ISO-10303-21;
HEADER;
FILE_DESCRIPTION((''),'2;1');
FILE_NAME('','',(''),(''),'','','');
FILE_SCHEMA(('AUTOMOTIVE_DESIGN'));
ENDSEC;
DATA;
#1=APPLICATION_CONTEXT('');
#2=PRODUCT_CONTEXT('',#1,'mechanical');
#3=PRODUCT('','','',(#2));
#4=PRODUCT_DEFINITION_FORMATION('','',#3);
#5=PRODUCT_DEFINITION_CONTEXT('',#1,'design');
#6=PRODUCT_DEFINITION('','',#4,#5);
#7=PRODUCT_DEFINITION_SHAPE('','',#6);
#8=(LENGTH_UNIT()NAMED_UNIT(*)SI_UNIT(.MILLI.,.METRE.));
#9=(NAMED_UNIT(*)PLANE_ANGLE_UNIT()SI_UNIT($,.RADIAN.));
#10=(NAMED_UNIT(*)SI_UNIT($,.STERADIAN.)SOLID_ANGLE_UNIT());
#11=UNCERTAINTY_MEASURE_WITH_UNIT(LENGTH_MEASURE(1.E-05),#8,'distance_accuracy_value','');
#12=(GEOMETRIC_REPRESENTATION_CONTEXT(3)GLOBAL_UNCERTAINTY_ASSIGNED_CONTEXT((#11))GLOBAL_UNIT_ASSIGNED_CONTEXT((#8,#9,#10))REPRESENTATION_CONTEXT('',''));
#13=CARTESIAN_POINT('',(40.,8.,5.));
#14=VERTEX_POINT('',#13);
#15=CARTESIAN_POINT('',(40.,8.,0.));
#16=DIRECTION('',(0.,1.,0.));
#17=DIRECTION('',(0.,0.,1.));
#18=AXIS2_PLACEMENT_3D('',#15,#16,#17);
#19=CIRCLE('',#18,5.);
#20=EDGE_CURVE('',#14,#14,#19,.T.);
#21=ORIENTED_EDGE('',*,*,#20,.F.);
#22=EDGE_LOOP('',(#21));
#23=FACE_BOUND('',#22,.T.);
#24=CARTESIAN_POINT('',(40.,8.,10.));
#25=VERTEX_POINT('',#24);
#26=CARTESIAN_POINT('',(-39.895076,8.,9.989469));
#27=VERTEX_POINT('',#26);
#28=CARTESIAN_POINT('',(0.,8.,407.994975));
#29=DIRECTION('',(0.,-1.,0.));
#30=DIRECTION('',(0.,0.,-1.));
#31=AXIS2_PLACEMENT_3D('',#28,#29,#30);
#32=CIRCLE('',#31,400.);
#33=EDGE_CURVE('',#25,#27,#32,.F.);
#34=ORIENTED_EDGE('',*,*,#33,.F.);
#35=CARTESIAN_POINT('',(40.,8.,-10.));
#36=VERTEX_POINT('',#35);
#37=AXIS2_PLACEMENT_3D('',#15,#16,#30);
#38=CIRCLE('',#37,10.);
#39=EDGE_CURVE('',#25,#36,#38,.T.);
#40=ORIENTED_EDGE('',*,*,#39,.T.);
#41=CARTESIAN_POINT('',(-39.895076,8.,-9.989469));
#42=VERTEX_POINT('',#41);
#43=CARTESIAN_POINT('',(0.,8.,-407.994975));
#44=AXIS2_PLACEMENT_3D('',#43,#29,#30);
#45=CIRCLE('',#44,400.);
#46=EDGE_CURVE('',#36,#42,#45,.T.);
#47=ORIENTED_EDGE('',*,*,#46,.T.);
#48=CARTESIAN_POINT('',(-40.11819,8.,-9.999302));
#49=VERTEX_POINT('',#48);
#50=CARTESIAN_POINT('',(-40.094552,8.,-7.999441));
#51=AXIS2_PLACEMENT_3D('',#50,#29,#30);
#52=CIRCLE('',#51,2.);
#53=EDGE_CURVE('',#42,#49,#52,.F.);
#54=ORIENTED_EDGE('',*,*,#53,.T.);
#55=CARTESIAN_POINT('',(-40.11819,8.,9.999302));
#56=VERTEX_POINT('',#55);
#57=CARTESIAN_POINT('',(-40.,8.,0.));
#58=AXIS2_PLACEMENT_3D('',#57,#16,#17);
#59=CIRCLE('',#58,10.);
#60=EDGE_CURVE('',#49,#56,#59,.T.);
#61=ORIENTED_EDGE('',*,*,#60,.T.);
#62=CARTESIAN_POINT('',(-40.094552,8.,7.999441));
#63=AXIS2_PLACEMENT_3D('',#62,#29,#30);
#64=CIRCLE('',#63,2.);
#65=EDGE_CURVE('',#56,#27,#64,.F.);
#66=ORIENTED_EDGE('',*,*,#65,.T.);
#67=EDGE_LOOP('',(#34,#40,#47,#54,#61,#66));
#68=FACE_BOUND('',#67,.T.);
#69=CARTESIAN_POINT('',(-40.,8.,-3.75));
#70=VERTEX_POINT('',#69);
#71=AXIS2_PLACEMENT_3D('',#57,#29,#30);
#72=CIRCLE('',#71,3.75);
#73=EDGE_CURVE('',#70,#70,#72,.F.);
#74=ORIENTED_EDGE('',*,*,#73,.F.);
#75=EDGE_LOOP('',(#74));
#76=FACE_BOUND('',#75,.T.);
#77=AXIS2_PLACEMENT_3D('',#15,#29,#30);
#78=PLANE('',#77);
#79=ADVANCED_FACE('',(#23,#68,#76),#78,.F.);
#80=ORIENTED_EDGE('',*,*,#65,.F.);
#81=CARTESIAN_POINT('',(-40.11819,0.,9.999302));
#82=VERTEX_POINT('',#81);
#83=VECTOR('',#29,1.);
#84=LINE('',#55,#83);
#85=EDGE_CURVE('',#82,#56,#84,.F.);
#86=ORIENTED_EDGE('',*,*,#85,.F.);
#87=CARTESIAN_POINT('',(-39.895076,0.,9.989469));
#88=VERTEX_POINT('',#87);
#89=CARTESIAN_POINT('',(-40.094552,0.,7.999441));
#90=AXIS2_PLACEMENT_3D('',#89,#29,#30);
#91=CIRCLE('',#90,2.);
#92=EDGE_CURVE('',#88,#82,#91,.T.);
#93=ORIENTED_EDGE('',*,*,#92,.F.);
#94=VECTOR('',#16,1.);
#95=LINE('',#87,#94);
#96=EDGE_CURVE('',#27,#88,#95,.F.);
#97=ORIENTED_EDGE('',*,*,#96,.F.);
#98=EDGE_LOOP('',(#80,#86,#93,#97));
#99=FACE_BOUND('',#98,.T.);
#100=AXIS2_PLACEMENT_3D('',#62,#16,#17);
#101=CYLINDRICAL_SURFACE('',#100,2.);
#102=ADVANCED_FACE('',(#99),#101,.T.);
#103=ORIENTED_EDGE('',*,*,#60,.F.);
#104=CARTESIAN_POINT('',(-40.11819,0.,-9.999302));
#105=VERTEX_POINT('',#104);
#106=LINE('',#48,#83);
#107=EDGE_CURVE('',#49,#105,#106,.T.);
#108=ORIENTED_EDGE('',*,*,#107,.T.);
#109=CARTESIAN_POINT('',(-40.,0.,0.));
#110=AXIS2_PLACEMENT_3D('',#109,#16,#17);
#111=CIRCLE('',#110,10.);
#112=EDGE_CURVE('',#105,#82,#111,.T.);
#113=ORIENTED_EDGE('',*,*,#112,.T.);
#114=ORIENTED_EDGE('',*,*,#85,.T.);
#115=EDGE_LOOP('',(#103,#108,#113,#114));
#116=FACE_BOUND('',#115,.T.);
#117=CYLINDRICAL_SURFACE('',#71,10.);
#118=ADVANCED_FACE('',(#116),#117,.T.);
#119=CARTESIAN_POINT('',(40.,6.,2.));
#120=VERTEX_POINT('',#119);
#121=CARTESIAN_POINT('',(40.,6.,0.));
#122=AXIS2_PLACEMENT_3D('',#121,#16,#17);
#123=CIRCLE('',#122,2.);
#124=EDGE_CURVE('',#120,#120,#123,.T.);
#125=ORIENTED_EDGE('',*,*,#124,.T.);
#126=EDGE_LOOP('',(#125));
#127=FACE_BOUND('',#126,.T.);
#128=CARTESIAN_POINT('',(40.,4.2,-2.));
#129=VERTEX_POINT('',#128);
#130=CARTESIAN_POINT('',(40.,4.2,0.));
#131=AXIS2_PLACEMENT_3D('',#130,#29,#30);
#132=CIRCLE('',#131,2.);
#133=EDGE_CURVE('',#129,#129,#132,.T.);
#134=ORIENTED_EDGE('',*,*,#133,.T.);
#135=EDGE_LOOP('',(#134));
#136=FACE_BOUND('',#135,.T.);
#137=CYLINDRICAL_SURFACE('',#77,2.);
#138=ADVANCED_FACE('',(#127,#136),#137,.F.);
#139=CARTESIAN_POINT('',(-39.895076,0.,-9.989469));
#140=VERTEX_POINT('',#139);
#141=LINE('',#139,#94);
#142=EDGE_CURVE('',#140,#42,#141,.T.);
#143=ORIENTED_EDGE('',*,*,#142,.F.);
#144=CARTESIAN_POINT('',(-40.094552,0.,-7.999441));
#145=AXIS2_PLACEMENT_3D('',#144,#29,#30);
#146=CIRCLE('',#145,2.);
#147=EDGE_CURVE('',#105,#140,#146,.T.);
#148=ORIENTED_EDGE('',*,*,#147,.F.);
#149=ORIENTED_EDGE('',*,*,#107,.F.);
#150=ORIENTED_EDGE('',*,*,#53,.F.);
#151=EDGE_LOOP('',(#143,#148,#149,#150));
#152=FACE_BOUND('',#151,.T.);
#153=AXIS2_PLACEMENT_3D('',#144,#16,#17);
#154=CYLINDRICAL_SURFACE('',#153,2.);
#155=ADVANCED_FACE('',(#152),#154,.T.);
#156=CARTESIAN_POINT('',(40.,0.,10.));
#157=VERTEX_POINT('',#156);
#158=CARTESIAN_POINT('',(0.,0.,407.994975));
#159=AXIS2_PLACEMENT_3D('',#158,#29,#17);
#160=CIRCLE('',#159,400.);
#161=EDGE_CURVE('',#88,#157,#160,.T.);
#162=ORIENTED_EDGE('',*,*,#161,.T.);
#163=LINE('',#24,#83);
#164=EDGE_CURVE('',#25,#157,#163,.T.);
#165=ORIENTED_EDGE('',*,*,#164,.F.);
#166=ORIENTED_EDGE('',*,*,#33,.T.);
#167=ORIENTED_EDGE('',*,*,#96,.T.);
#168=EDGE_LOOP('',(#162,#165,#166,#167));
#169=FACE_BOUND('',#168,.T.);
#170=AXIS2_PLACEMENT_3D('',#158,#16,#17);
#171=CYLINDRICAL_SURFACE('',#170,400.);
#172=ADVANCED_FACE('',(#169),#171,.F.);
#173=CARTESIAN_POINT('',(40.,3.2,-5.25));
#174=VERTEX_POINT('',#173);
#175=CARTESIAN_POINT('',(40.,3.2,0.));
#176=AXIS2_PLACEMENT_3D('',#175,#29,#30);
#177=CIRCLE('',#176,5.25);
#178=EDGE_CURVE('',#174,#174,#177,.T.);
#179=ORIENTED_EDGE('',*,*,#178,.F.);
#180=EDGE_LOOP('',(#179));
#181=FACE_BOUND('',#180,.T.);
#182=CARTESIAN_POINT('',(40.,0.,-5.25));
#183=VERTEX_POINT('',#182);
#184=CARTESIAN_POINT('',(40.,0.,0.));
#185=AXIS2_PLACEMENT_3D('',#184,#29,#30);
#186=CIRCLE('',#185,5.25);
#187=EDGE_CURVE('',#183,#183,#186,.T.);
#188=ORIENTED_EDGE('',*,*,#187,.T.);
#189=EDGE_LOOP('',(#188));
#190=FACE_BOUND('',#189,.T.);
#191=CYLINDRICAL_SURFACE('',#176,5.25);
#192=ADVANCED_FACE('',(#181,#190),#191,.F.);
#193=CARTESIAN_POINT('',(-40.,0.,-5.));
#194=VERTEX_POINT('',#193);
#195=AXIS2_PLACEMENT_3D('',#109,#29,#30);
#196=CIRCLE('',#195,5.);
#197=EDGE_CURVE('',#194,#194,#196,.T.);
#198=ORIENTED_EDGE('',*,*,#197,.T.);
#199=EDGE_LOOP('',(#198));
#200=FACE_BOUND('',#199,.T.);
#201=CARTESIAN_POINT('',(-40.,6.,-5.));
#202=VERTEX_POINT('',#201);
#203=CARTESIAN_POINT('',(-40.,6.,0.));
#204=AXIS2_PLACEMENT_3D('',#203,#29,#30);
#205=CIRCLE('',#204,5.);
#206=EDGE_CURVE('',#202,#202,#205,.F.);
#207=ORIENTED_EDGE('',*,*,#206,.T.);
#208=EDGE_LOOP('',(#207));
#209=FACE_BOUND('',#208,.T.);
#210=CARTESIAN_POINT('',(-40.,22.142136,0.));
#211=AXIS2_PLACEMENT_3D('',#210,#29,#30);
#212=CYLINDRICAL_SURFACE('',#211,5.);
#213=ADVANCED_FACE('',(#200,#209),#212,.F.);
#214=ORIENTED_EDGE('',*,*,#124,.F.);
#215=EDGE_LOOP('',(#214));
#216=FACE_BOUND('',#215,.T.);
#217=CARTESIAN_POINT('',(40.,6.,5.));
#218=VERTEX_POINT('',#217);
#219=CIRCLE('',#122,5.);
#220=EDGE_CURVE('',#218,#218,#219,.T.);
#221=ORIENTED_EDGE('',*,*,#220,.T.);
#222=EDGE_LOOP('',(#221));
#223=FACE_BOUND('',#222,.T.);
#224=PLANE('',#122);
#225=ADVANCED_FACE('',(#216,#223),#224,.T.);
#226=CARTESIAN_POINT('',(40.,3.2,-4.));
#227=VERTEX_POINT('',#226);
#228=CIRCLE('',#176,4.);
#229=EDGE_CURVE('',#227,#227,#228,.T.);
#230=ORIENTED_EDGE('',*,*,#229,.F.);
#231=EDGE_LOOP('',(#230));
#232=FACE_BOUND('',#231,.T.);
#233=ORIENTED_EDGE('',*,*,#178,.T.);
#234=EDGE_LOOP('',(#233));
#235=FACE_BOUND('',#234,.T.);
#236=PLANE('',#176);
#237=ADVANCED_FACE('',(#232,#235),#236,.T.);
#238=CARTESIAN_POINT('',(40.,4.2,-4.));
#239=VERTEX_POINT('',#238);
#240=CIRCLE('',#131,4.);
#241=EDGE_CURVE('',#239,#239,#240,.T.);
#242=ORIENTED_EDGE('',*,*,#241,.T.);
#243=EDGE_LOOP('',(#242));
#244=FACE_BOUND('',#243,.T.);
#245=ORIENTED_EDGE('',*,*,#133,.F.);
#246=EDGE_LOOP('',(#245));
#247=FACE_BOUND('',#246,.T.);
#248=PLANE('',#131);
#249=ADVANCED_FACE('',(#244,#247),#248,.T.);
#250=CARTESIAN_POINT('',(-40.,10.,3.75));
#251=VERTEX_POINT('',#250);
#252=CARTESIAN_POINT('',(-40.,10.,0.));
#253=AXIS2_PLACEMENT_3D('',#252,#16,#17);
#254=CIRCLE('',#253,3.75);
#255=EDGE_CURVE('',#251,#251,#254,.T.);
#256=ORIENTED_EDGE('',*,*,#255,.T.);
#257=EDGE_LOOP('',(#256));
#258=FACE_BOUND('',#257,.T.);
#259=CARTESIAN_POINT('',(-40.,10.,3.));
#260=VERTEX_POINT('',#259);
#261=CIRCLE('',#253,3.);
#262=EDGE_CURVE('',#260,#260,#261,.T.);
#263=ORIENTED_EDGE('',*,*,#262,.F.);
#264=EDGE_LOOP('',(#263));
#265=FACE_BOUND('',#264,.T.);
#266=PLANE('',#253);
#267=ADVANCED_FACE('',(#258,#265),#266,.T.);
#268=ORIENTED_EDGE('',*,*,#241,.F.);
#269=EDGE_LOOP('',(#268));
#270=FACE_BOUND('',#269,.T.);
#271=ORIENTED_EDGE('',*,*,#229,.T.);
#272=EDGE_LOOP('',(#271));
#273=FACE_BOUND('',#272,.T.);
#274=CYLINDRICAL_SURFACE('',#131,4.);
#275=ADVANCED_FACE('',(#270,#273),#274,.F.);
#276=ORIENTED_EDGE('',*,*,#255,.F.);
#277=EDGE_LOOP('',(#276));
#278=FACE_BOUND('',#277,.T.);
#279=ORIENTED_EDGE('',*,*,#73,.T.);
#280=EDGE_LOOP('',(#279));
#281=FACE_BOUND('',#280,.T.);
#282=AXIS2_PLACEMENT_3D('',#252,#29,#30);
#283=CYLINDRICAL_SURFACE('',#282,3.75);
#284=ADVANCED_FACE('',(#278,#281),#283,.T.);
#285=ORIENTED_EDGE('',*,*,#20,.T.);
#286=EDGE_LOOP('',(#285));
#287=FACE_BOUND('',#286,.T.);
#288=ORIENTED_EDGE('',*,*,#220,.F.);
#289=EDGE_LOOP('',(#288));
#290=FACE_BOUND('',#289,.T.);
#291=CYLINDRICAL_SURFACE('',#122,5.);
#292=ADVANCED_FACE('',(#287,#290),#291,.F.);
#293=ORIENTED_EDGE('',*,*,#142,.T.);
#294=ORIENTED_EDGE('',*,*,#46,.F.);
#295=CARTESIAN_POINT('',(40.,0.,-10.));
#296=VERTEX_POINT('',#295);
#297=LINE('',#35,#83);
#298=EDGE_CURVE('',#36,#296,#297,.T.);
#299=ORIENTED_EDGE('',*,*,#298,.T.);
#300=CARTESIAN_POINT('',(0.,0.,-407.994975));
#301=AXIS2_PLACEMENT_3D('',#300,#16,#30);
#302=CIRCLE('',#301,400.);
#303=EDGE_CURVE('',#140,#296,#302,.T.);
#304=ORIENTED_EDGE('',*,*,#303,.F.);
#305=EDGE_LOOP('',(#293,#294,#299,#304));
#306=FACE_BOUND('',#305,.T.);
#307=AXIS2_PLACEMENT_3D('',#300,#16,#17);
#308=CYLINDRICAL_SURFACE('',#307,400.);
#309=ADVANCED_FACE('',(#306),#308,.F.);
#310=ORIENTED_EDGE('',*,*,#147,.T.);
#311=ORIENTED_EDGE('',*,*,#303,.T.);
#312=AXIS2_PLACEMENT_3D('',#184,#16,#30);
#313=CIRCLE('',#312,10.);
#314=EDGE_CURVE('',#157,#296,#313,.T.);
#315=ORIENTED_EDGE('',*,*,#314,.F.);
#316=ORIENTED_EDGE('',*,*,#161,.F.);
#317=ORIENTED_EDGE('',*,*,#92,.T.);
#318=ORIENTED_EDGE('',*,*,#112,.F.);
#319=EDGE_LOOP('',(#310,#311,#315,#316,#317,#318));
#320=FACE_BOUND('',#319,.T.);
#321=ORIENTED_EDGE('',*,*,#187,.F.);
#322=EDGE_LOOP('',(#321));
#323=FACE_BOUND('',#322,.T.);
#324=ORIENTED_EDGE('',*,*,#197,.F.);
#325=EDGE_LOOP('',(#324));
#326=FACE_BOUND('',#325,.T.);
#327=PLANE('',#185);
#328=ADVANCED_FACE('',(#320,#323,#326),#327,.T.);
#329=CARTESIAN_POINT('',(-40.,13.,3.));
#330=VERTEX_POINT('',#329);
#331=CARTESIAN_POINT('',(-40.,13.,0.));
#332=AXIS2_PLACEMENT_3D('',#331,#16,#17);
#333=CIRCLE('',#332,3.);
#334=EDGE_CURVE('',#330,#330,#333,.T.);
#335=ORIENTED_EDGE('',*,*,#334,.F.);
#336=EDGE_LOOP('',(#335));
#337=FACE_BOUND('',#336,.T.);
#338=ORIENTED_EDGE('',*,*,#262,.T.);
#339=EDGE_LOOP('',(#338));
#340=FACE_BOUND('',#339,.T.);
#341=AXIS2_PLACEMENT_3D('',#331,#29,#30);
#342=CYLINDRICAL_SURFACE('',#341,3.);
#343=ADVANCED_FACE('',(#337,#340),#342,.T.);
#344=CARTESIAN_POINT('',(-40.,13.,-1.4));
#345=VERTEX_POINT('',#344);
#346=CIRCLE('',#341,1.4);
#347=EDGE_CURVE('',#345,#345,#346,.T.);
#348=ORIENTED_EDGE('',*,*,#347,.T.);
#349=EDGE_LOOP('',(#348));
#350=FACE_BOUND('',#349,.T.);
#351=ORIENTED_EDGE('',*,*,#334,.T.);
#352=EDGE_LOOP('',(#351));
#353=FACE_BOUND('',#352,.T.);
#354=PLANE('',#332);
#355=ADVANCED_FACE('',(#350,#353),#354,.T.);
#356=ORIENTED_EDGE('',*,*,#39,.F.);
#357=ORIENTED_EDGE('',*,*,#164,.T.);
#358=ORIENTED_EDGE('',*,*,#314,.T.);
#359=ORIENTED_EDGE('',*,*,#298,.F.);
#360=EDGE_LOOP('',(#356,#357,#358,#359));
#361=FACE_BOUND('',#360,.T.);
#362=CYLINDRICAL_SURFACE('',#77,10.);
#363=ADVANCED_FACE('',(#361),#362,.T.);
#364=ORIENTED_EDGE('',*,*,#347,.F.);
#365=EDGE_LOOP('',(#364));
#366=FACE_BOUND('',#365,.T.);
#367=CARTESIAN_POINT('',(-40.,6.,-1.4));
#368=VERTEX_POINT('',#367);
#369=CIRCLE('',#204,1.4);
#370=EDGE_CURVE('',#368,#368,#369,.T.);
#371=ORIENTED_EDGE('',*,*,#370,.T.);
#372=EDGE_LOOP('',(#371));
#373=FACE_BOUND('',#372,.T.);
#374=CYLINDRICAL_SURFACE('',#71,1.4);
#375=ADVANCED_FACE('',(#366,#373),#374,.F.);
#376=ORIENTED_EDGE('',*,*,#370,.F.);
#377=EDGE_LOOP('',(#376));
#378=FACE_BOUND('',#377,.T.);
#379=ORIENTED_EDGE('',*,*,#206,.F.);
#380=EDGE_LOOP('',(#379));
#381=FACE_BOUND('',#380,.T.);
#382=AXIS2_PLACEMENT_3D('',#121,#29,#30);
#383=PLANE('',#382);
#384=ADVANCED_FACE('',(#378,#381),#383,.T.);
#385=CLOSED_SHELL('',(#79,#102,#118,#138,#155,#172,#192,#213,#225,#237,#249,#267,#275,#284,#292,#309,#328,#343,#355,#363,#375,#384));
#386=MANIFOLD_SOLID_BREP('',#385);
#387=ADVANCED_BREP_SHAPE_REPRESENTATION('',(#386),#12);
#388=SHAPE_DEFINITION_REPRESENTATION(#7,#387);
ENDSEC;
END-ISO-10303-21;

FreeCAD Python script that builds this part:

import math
import FreeCAD as App
import Part
import Sketcher
from FreeCAD import Vector
Q = App.Units.Quantity


def edges_at(feature, points):
    """Names of the edges that pass closest to the given points."""
    edges = feature.Shape.Edges
    near = lambda p: min(range(len(edges)), key=lambda i: edges[i].distToShape(Part.Vertex(*p))[0])
    return sorted({f"Edge{near(p) + 1}" for p in points})

doc = App.newDocument("Part")
body = doc.addObject("PartDesign::Body", "Body")

sketch1 = body.newObject("Sketcher::SketchObject", "Sketch")
sketch1.AttachmentSupport = (doc.getObject("XZ_Plane"), [""])
sketch1.MapMode = "FlatFace"
sketch1.addGeometry(Part.LineSegment(Vector(-40, 10, 0), Vector(40, 10, 0)), False)
sketch1.addGeometry(Part.ArcOfCircle(Part.Circle(Vector(40, 0, 0), Vector(0, 0, 1), 10), math.radians(-90), math.radians(90)), False)
sketch1.addGeometry(Part.LineSegment(Vector(40, -10, 0), Vector(-40, -10, 0)), False)
sketch1.addGeometry(Part.ArcOfCircle(Part.Circle(Vector(-40, 0, 0), Vector(0, 0, 1), 10), math.radians(90), math.radians(270)), False)
sketch1.addGeometry(Part.Circle(Vector(-40, 0, 0), Vector(0, 0, 1), 1.4), False)
sketch1.addGeometry(Part.Circle(Vector(40, 0, 0), Vector(0, 0, 1), 2), False)
sketch1.addConstraint(Sketcher.Constraint("Tangent", 0, 2, 1, 2))
sketch1.addConstraint(Sketcher.Constraint("Tangent", 1, 1, 2, 1))
sketch1.addConstraint(Sketcher.Constraint("Tangent", 2, 2, 3, 2))
sketch1.addConstraint(Sketcher.Constraint("Tangent", 3, 1, 0, 1))
sketch1.addConstraint(Sketcher.Constraint("Horizontal", 0))
sketch1.addConstraint(Sketcher.Constraint("Horizontal", 2))
sketch1.addConstraint(Sketcher.Constraint("Coincident", 4, 3, 3, 3))
sketch1.addConstraint(Sketcher.Constraint("Coincident", 5, 3, 1, 3))
sketch1.addConstraint(Sketcher.Constraint("Symmetric", 1, 3, 3, 3, -1, 1))
sketch1.addConstraint(Sketcher.Constraint("Diameter", 5, Q("4 mm")))
sketch1.addConstraint(Sketcher.Constraint("Radius", 1, Q("10 mm")))
sketch1.addConstraint(Sketcher.Constraint("Diameter", 4, Q("2.8 mm")))
sketch1.addConstraint(Sketcher.Constraint("DistanceX", 0, 1, 0, 2, Q("80 mm")))
pad1 = body.newObject("PartDesign::Pad", "Pad")
pad1.Profile = sketch1
pad1.Length = 8
pad1.Reversed = True

sketch2 = body.newObject("Sketcher::SketchObject", "Sketch001")
sketch2.AttachmentSupport = (doc.getObject("XZ_Plane"), [""])
sketch2.MapMode = "FlatFace"
sketch2.AttachmentOffset = App.Placement(Vector(0, 0, -8), App.Rotation())
sketch2.addGeometry(Part.Circle(Vector(-40, 0, 0), Vector(0, 0, 1), 3.8), False)
sketch2.addConstraint(Sketcher.Constraint("PointOnObject", 0, 3, -1))
sketch2.addConstraint(Sketcher.Constraint("Diameter", 0, Q("7.5 mm")))
sketch2.addConstraint(Sketcher.Constraint("DistanceX", 0, 3, -1, 1, Q("40 mm")))
pad2 = body.newObject("PartDesign::Pad", "Pad001")
pad2.Profile = sketch2
pad2.Length = 2
pad2.Reversed = True

sketch3 = body.newObject("Sketcher::SketchObject", "Sketch002")
sketch3.AttachmentSupport = (doc.getObject("XZ_Plane"), [""])
sketch3.MapMode = "FlatFace"
sketch3.AttachmentOffset = App.Placement(Vector(0, 0, -10), App.Rotation())
sketch3.addGeometry(Part.Circle(Vector(-40, 0, 0), Vector(0, 0, 1), 3), False)
sketch3.addConstraint(Sketcher.Constraint("PointOnObject", 0, 3, -1))
sketch3.addConstraint(Sketcher.Constraint("Diameter", 0, Q("6 mm")))
sketch3.addConstraint(Sketcher.Constraint("DistanceX", 0, 3, -1, 1, Q("40 mm")))
pad3 = body.newObject("PartDesign::Pad", "Pad002")
pad3.Profile = sketch3
pad3.Length = 3
pad3.Reversed = True

sketch4 = body.newObject("Sketcher::SketchObject", "Sketch003")
sketch4.AttachmentSupport = (doc.getObject("XZ_Plane"), [""])
sketch4.MapMode = "FlatFace"
sketch4.addGeometry(Part.Circle(Vector(-40, 0, 0), Vector(0, 0, 1), 1.4), False)
sketch4.addConstraint(Sketcher.Constraint("PointOnObject", 0, 3, -1))
sketch4.addConstraint(Sketcher.Constraint("Diameter", 0, Q("2.8 mm")))
sketch4.addConstraint(Sketcher.Constraint("DistanceX", 0, 3, -1, 1, Q("40 mm")))
pocket1 = body.newObject("PartDesign::Pocket", "Pocket")
pocket1.Profile = sketch4
pocket1.Type = "ThroughAll"

sketch5 = body.newObject("Sketcher::SketchObject", "Sketch004")
sketch5.AttachmentSupport = (doc.getObject("XZ_Plane"), [""])
sketch5.MapMode = "FlatFace"
sketch5.addGeometry(Part.Circle(Vector(-40, 0, 0), Vector(0, 0, 1), 5), False)
sketch5.addConstraint(Sketcher.Constraint("PointOnObject", 0, 3, -1))
sketch5.addConstraint(Sketcher.Constraint("Diameter", 0, Q("10 mm")))
sketch5.addConstraint(Sketcher.Constraint("DistanceX", 0, 3, -1, 1, Q("40 mm")))
pocket2 = body.newObject("PartDesign::Pocket", "Pocket001")
pocket2.Profile = sketch5
pocket2.Length = 6

sketch6 = body.newObject("Sketcher::SketchObject", "Sketch005")
sketch6.AttachmentSupport = (doc.getObject("XZ_Plane"), [""])
sketch6.MapMode = "FlatFace"
sketch6.addGeometry(Part.Circle(Vector(40, 0, 0), Vector(0, 0, 1), 5), False)
sketch6.addConstraint(Sketcher.Constraint("PointOnObject", 0, 3, -1))
sketch6.addConstraint(Sketcher.Constraint("Diameter", 0, Q("10.5 mm")))
sketch6.addConstraint(Sketcher.Constraint("DistanceX", -1, 1, 0, 3, Q("40 mm")))
pocket3 = body.newObject("PartDesign::Pocket", "Pocket002")
pocket3.Profile = sketch6
pocket3.Length = 3.2

sketch7 = body.newObject("Sketcher::SketchObject", "Sketch006")
sketch7.AttachmentSupport = (doc.getObject("XZ_Plane"), [""])
sketch7.MapMode = "FlatFace"
sketch7.AttachmentOffset = App.Placement(Vector(0, 0, -8), App.Rotation())
sketch7.addGeometry(Part.Circle(Vector(40, 0, 0), Vector(0, 0, 1), 5), False)
sketch7.addConstraint(Sketcher.Constraint("PointOnObject", 0, 3, -1))
sketch7.addConstraint(Sketcher.Constraint("Diameter", 0, Q("10 mm")))
sketch7.addConstraint(Sketcher.Constraint("DistanceX", -1, 1, 0, 3, Q("40 mm")))
pocket4 = body.newObject("PartDesign::Pocket", "Pocket003")
pocket4.Profile = sketch7
pocket4.Length = 2
pocket4.Reversed = True

sketch8 = body.newObject("Sketcher::SketchObject", "Sketch007")
sketch8.AttachmentSupport = (doc.getObject("XZ_Plane"), [""])
sketch8.MapMode = "FlatFace"
sketch8.AttachmentOffset = App.Placement(Vector(0, 0, -3.2), App.Rotation())
sketch8.addGeometry(Part.Circle(Vector(40, 0, 0), Vector(0, 0, 1), 4), False)
sketch8.addConstraint(Sketcher.Constraint("PointOnObject", 0, 3, -1))
sketch8.addConstraint(Sketcher.Constraint("Diameter", 0, Q("8 mm")))
sketch8.addConstraint(Sketcher.Constraint("DistanceX", -1, 1, 0, 3, Q("40 mm")))
pocket5 = body.newObject("PartDesign::Pocket", "Pocket004")
pocket5.Profile = sketch8
pocket5.Length = 1

sketch9 = body.newObject("Sketcher::SketchObject", "Sketch008")
sketch9.AttachmentSupport = (doc.getObject("XZ_Plane"), [""])
sketch9.MapMode = "FlatFace"
sketch9.AttachmentOffset = App.Placement(Vector(0, 0, -8), App.Rotation())
sketch9.addGeometry(Part.LineSegment(Vector(40, -10, 0), Vector(-40, -10, 0)), False)
sketch9.addGeometry(Part.ArcOfCircle(Part.Circle(Vector(0, -408, 0), Vector(0, 0, 1), 400), math.radians(84.26), math.radians(95.74)), False)
sketch9.addConstraint(Sketcher.Constraint("Coincident", 0, 1, 1, 1))
sketch9.addConstraint(Sketcher.Constraint("Coincident", 1, 2, 0, 2))
sketch9.addConstraint(Sketcher.Constraint("Horizontal", 0))
sketch9.addConstraint(Sketcher.Constraint("PointOnObject", 1, 3, -2))
sketch9.addConstraint(Sketcher.Constraint("Radius", 1, Q("400 mm")))
sketch9.addConstraint(Sketcher.Constraint("DistanceX", 0, 2, 0, 1, Q("80 mm")))
sketch9.addConstraint(Sketcher.Constraint("DistanceY", 0, 1, -1, 1, Q("10 mm")))
pocket6 = body.newObject("PartDesign::Pocket", "Pocket005")
pocket6.Profile = sketch9
pocket6.Length = 105.227903
pocket6.Midplane = True
doc.recompute()

mirrored = body.newObject("PartDesign::Mirrored", "Mirrored")
mirrored.Originals = [pocket6]
mirrored.MirrorPlane = (doc.getObject("XY_Plane"), [""])
body.Tip = mirrored
doc.recompute()

fillet = body.newObject("PartDesign::Fillet", "Fillet")
fillet.Base = (mirrored, edges_at(mirrored, [(-40, 4, 10), (-40, 4, -10)]))
fillet.Radius = 2

doc.recompute()
